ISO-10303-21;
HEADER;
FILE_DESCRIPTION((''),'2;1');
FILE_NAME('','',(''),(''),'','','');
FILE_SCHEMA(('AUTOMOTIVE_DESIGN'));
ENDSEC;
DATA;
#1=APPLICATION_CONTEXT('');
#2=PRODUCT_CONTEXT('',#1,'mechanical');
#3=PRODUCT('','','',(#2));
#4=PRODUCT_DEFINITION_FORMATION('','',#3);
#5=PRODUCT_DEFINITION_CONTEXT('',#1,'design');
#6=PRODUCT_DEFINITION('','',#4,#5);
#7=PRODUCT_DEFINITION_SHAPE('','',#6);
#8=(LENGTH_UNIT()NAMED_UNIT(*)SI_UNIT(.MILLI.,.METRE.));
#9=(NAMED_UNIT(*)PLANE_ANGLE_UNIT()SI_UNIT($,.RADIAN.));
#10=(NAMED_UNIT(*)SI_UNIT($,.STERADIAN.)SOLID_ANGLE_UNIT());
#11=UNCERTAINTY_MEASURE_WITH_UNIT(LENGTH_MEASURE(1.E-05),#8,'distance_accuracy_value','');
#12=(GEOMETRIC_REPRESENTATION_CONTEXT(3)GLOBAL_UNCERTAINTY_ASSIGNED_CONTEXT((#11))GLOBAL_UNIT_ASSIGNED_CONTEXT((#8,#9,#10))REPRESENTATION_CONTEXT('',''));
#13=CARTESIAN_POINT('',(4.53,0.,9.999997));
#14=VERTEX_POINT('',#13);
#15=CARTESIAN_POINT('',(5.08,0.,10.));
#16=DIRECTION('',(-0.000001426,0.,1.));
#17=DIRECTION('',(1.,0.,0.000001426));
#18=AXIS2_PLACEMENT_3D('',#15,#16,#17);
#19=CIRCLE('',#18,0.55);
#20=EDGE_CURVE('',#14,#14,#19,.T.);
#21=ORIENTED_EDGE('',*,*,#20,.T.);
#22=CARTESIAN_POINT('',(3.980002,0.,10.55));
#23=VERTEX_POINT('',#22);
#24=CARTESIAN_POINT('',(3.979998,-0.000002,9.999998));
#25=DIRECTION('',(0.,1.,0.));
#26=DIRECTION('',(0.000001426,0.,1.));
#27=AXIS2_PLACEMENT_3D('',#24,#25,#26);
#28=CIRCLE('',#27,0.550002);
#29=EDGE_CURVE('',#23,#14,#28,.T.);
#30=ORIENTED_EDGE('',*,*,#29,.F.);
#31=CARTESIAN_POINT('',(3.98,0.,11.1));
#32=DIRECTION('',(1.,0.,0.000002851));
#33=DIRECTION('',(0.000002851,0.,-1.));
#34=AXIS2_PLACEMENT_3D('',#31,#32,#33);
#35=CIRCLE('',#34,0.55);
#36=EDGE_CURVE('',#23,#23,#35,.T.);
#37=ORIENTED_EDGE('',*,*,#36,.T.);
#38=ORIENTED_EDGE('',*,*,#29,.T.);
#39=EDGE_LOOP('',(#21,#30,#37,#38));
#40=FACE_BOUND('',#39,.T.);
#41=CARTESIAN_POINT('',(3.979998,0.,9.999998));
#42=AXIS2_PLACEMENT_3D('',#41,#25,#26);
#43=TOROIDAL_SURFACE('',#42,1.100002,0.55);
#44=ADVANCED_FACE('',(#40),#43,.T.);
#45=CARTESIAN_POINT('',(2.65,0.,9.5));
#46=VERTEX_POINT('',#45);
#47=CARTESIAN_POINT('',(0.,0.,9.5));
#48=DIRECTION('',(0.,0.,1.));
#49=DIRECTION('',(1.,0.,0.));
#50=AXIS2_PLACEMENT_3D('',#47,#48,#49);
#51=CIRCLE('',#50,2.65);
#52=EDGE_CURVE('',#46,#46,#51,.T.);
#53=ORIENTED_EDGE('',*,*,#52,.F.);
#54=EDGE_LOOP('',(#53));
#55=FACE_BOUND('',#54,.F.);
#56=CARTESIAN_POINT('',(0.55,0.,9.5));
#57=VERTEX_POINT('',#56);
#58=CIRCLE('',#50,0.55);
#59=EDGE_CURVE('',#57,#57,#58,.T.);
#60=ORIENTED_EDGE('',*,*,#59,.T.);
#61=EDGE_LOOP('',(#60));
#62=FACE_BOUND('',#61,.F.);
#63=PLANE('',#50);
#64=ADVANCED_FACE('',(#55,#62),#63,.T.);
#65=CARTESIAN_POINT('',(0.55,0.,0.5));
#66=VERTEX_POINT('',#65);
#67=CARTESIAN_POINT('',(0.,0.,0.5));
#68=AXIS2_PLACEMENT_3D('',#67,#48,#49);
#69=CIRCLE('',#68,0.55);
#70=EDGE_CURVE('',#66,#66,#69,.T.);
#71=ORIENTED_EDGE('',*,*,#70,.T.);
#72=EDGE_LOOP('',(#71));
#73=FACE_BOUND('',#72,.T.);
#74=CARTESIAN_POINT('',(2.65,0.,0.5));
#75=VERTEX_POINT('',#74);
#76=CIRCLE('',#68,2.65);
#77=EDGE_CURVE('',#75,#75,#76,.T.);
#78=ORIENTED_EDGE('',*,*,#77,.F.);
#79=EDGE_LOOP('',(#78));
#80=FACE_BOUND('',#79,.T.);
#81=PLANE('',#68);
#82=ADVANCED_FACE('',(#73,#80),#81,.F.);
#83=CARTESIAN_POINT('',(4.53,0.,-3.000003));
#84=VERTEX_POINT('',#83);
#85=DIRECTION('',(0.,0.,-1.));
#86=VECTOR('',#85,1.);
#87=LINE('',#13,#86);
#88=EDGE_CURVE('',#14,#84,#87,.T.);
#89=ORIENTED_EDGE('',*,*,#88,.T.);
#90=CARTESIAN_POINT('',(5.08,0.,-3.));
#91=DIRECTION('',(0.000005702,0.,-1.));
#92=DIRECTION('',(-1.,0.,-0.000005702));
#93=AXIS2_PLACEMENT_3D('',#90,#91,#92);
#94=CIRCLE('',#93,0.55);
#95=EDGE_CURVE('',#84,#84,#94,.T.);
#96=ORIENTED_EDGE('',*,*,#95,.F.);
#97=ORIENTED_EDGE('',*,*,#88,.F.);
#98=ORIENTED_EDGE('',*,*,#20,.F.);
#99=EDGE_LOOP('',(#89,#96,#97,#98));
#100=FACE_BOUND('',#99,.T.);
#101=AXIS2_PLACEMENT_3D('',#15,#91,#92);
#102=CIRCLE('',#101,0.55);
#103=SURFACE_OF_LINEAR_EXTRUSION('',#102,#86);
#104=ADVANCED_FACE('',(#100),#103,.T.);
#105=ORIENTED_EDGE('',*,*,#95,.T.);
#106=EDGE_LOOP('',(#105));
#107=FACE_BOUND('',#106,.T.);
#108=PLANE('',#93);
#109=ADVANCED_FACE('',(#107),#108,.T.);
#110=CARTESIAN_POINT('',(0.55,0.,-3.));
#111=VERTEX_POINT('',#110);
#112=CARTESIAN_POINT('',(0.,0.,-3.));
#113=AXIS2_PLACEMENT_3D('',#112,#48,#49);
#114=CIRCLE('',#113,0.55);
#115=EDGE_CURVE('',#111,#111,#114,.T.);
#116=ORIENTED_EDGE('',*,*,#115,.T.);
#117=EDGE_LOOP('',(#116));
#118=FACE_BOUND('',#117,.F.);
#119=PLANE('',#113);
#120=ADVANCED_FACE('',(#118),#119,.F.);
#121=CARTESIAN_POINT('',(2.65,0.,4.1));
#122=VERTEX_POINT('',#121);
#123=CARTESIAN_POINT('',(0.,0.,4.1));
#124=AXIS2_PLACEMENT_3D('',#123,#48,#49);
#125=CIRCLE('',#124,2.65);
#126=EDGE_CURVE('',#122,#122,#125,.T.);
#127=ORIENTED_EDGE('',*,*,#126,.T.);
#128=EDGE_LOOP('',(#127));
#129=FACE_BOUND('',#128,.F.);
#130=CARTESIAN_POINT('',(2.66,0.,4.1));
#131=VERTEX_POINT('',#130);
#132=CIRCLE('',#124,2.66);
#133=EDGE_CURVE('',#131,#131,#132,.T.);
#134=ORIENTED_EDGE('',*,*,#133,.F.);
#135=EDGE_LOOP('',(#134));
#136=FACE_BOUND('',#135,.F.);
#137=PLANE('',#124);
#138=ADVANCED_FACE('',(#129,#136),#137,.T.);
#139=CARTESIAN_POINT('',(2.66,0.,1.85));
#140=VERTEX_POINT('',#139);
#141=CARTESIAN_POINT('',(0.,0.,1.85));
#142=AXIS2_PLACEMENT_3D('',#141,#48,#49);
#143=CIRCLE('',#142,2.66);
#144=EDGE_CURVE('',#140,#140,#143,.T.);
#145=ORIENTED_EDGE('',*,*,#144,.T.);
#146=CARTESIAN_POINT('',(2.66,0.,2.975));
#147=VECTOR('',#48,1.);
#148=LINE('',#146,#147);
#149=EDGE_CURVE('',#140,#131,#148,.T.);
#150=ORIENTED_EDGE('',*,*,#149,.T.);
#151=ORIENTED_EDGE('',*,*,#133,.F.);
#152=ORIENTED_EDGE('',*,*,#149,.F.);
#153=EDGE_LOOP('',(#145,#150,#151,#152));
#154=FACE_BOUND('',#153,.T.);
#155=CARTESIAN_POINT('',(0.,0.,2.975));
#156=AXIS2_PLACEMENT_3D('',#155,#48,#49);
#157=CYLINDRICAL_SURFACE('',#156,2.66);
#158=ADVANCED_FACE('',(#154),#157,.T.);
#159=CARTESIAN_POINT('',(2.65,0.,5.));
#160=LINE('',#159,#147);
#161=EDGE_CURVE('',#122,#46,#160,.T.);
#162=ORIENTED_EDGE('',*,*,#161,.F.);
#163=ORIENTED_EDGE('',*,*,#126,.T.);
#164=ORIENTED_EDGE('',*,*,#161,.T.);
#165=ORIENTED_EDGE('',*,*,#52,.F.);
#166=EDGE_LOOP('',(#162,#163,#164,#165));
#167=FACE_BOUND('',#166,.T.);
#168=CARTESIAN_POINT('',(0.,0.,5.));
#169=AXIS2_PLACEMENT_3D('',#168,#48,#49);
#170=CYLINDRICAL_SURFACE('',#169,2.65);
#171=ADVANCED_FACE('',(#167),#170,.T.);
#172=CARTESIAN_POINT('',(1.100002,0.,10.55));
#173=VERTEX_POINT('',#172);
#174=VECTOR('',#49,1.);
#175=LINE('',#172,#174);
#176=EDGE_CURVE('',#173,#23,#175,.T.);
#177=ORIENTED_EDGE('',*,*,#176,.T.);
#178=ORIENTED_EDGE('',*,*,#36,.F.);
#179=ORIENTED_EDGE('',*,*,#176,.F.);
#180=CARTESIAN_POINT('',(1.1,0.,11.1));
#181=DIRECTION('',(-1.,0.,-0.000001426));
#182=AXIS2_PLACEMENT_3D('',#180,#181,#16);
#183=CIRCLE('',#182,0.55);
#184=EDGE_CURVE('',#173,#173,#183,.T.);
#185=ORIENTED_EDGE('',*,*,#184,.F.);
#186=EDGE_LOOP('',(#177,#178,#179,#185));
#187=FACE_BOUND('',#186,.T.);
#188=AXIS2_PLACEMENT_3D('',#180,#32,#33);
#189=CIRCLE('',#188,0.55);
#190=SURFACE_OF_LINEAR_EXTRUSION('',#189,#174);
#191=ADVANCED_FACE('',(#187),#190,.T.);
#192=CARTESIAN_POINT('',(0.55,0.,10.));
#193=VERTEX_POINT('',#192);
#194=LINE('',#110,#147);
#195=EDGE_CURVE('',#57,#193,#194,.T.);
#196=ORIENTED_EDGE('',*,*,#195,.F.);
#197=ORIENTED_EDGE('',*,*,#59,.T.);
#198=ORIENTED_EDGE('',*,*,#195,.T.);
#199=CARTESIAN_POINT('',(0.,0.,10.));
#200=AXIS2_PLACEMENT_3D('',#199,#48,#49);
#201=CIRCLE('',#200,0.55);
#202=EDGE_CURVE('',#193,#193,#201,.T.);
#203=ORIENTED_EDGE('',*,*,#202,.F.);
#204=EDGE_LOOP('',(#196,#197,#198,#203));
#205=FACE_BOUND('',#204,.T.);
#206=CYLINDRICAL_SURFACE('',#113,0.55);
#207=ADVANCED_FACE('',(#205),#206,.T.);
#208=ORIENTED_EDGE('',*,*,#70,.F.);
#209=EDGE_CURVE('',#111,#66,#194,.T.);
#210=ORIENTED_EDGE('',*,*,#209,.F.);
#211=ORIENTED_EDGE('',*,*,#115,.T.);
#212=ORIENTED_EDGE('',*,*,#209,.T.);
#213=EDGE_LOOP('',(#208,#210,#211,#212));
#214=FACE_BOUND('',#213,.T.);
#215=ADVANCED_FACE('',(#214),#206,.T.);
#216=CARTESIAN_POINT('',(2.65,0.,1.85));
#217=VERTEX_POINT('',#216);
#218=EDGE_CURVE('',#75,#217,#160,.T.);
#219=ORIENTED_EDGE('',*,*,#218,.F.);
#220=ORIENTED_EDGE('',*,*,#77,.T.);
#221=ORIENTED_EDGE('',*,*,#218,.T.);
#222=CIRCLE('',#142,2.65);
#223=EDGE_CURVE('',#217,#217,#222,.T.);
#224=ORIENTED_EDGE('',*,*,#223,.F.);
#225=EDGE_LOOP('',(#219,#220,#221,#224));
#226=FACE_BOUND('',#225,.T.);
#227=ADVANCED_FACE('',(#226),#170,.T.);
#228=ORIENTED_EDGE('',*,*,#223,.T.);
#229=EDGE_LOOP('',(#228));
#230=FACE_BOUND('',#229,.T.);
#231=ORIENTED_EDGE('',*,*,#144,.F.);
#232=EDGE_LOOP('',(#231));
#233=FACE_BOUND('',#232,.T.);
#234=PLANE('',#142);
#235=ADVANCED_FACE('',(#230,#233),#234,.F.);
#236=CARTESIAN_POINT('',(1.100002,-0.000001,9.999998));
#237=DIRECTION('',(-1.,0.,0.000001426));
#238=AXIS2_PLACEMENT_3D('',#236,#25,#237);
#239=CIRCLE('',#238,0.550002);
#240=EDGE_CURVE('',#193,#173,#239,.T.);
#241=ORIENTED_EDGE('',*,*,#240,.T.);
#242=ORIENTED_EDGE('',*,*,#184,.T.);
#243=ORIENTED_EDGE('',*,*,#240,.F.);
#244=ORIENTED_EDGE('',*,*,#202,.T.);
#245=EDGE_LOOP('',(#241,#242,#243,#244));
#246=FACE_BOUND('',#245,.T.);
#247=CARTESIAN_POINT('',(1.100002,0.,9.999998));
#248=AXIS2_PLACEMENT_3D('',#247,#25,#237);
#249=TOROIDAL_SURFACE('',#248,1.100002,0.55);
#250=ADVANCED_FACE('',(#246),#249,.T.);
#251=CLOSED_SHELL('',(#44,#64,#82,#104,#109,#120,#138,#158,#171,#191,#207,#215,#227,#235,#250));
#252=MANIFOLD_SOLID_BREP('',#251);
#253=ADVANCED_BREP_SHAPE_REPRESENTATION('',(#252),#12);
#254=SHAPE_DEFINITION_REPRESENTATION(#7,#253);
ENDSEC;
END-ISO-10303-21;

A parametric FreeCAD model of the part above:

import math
import FreeCAD as App
import Part
import Sketcher

doc = App.newDocument("Part")
body = doc.addObject("PartDesign::Body", "Body")

# Sketch on XZ plane
sketch1 = doc.addObject("Sketcher::SketchObject", "Sketch")
body.addObject(sketch1)
sketch1.AttachmentSupport = (doc.XZ_Plane, [""])
sketch1.MapMode = "FlatFace"
sketch1.addGeometry(Part.LineSegment(App.Vector(0, 4.1, 0), App.Vector(0, 1.85, 0)), False)
sketch1.addGeometry(Part.LineSegment(App.Vector(0, 1.85, 0), App.Vector(2.66, 1.85, 0)), False)
sketch1.addGeometry(Part.LineSegment(App.Vector(2.66, 1.85, 0), App.Vector(2.66, 4.1, 0)), False)
sketch1.addGeometry(Part.LineSegment(App.Vector(2.66, 4.1, 0), App.Vector(0, 4.1, 0)), False)
sketch1.addConstraint(Sketcher.Constraint("Coincident", 0, 2, 1, 1))
sketch1.addConstraint(Sketcher.Constraint("Coincident", 1, 2, 2, 1))
sketch1.addConstraint(Sketcher.Constraint("Coincident", 2, 2, 3, 1))
sketch1.addConstraint(Sketcher.Constraint("Coincident", 3, 2, 0, 1))
sketch1.addConstraint(Sketcher.Constraint("Vertical", 0))
sketch1.addConstraint(Sketcher.Constraint("Horizontal", 1))
sketch1.addConstraint(Sketcher.Constraint("Vertical", 2))
sketch1.addConstraint(Sketcher.Constraint("Horizontal", 3))
sketch1.addConstraint(Sketcher.Constraint("PointOnObject", 0, 2, -2))
sketch1.addConstraint(Sketcher.Constraint("DistanceX", 1, 1, 1, 2, 2.66))
sketch1.addConstraint(Sketcher.Constraint("DistanceY", 0, 2, 0, 1, 2.25))
sketch1.addConstraint(Sketcher.Constraint("DistanceY", -1, 1, 2, 2, 4.1))
revolution = doc.addObject("PartDesign::Revolution", "Revolution")
body.addObject(revolution)
revolution.Profile = sketch1
revolution.ReferenceAxis = (sketch1, ["V_Axis"])
revolution.Angle = 360
body2 = doc.addObject("PartDesign::Body", "Body001")

# Sketch on XZ plane
sketch2 = doc.addObject("Sketcher::SketchObject", "Sketch001")
body2.addObject(sketch2)
sketch2.AttachmentSupport = (doc.getObject("XZ_Plane001"), [""])
sketch2.MapMode = "FlatFace"
sketch2.addGeometry(Part.LineSegment(App.Vector(0, 9.5, 0), App.Vector(0, 0.5, 0)), False)
sketch2.addGeometry(Part.LineSegment(App.Vector(0, 0.5, 0), App.Vector(2.65, 0.5, 0)), False)
sketch2.addGeometry(Part.LineSegment(App.Vector(2.65, 0.5, 0), App.Vector(2.65, 9.5, 0)), False)
sketch2.addGeometry(Part.LineSegment(App.Vector(2.65, 9.5, 0), App.Vector(0, 9.5, 0)), False)
sketch2.addConstraint(Sketcher.Constraint("Coincident", 0, 2, 1, 1))
sketch2.addConstraint(Sketcher.Constraint("Coincident", 1, 2, 2, 1))
sketch2.addConstraint(Sketcher.Constraint("Coincident", 2, 2, 3, 1))
sketch2.addConstraint(Sketcher.Constraint("Coincident", 3, 2, 0, 1))
sketch2.addConstraint(Sketcher.Constraint("Vertical", 0))
sketch2.addConstraint(Sketcher.Constraint("Horizontal", 1))
sketch2.addConstraint(Sketcher.Constraint("Vertical", 2))
sketch2.addConstraint(Sketcher.Constraint("Horizontal", 3))
sketch2.addConstraint(Sketcher.Constraint("PointOnObject", 0, 2, -2))
sketch2.addConstraint(Sketcher.Constraint("DistanceY", 0, 2, 0, 1, 9.0))
sketch2.addConstraint(Sketcher.Constraint("DistanceX", 1, 1, 1, 2, 2.65))
sketch2.addConstraint(Sketcher.Constraint("DistanceY", -1, 1, 0, 2, 0.5))
revolution2 = doc.addObject("PartDesign::Revolution", "Revolution001")
body2.addObject(revolution2)
revolution2.Profile = sketch2
revolution2.ReferenceAxis = (sketch2, ["V_Axis"])
revolution2.Angle = 360
body3 = doc.addObject("PartDesign::Body", "Body002")

# Sketch on XY plane
sketch3 = doc.addObject("Sketcher::SketchObject", "Sketch002")
body3.addObject(sketch3)
sketch3.AttachmentSupport = (doc.getObject("XY_Plane002"), [""])
sketch3.MapMode = "FlatFace"
sketch3.addGeometry(Part.Circle(App.Vector(0, 0, 0), App.Vector(0, 0, 1), 0.55), False)
sketch3.addConstraint(Sketcher.Constraint("Coincident", 0, 3, -1, 1))
sketch3.addConstraint(Sketcher.Constraint("Diameter", 0, 1.1))

# Sketch on XZ plane
sketch4 = doc.addObject("Sketcher::SketchObject", "Sketch003")
body3.addObject(sketch4)
sketch4.AttachmentSupport = (doc.getObject("XZ_Plane002"), [""])
sketch4.MapMode = "FlatFace"
sketch4.addGeometry(Part.LineSegment(App.Vector(0, -3, 0), App.Vector(0, 10, 0)), False)
sketch4.addGeometry(Part.ArcOfCircle(Part.Circle(App.Vector(1.100002, 9.999998, 0), App.Vector(0, 0, 1), 1.100002), math.radians(90.000082), math.radians(179.999918)), False)
sketch4.addGeometry(Part.LineSegment(App.Vector(1.1, 11.1, 0), App.Vector(3.98, 11.1, 0)), False)
sketch4.addGeometry(Part.ArcOfCircle(Part.Circle(App.Vector(3.979998, 9.999998, 0), App.Vector(0, 0, 1), 1.100002), math.radians(0.000082), math.radians(89.999918)), False)
sketch4.addGeometry(Part.LineSegment(App.Vector(5.08, 10, 0), App.Vector(5.08, -3, 0)), False)
sketch4.addConstraint(Sketcher.Constraint("Tangent", 0, 2, 1, 2))
sketch4.addConstraint(Sketcher.Constraint("Tangent", 1, 1, 2, 1))
sketch4.addConstraint(Sketcher.Constraint("Tangent", 2, 2, 3, 2))
sketch4.addConstraint(Sketcher.Constraint("Tangent", 3, 1, 4, 1))
sketch4.addConstraint(Sketcher.Constraint("Vertical", 0))
sketch4.addConstraint(Sketcher.Constraint("Horizontal", 2))
sketch4.addConstraint(Sketcher.Constraint("Vertical", 4))
sketch4.addConstraint(Sketcher.Constraint("Equal", 1, 3))
sketch4.addConstraint(Sketcher.Constraint("PointOnObject", 0, 1, -2))
sketch4.addConstraint(Sketcher.Constraint("Horizontal", 0, 1, 4, 2))
sketch4.addConstraint(Sketcher.Constraint("Radius", 1, 1.100002))
sketch4.addConstraint(Sketcher.Constraint("DistanceY", 0, 1, 0, 2, 13.0))
sketch4.addConstraint(Sketcher.Constraint("DistanceY", -1, 1, 1, 3, 9.999998))
sketch4.addConstraint(Sketcher.Constraint("DistanceX", 2, 1, 2, 2, 2.88))
doc.recompute()

additivepipe = doc.addObject("PartDesign::AdditivePipe", "AdditivePipe")
body3.addObject(additivepipe)
additivepipe.Profile = sketch3
additivepipe.Spine = (sketch4, ["Edge1", "Edge2", "Edge3", "Edge4", "Edge5"])
doc.recompute()

boolean = doc.addObject("PartDesign::Boolean", "Boolean")
body3.addObject(boolean)
boolean.Type = "Fuse"
boolean.addObjects([body])
doc.recompute()

boolean2 = doc.addObject("PartDesign::Boolean", "Boolean001")
body3.addObject(boolean2)
boolean2.Type = "Fuse"
boolean2.addObjects([body2])

doc.recompute()
